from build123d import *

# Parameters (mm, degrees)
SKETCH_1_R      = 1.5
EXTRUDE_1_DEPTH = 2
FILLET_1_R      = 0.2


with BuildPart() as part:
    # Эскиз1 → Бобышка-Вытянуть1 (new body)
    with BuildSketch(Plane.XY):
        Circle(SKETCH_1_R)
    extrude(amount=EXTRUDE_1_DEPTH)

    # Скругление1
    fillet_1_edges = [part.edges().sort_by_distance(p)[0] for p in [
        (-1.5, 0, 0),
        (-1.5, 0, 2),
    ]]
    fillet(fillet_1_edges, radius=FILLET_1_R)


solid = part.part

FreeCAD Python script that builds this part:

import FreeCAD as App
import Part
import Sketcher

V = App.Vector
Q = App.Units.Quantity


def edges_at(feature, points):
    """Names of the edges that pass closest to the given points."""
    edges = feature.Shape.Edges
    near = lambda p: min(range(len(edges)), key=lambda i: edges[i].distToShape(Part.Vertex(*p))[0])
    return sorted({f"Edge{near(p) + 1}" for p in points})

doc = App.newDocument("Part")
body = doc.addObject("PartDesign::Body", "Body")

# Sketch on XY plane
sketch1 = body.newObject("Sketcher::SketchObject", "Sketch")
sketch1.AttachmentSupport = (doc.getObject("XY_Plane"), [""])
sketch1.MapMode = "FlatFace"
sketch1.addGeometry(Part.Circle(V(0, 0, 0), V(0, 0, 1), 1.5), False)
sketch1.addConstraint(Sketcher.Constraint("Coincident", 0, 3, -1, 1))
sketch1.addConstraint(Sketcher.Constraint("Diameter", 0, Q("3 mm")))
pad1 = body.newObject("PartDesign::Pad", "Pad")
pad1.Profile = sketch1
pad1.Length = 2
doc.recompute()

fillet = body.newObject("PartDesign::Fillet", "Fillet")
fillet.Base = (pad1, edges_at(pad1, [(-1.5, 0, 0), (-1.5, 0, 2)]))
fillet.Radius = 0.2

doc.recompute()
